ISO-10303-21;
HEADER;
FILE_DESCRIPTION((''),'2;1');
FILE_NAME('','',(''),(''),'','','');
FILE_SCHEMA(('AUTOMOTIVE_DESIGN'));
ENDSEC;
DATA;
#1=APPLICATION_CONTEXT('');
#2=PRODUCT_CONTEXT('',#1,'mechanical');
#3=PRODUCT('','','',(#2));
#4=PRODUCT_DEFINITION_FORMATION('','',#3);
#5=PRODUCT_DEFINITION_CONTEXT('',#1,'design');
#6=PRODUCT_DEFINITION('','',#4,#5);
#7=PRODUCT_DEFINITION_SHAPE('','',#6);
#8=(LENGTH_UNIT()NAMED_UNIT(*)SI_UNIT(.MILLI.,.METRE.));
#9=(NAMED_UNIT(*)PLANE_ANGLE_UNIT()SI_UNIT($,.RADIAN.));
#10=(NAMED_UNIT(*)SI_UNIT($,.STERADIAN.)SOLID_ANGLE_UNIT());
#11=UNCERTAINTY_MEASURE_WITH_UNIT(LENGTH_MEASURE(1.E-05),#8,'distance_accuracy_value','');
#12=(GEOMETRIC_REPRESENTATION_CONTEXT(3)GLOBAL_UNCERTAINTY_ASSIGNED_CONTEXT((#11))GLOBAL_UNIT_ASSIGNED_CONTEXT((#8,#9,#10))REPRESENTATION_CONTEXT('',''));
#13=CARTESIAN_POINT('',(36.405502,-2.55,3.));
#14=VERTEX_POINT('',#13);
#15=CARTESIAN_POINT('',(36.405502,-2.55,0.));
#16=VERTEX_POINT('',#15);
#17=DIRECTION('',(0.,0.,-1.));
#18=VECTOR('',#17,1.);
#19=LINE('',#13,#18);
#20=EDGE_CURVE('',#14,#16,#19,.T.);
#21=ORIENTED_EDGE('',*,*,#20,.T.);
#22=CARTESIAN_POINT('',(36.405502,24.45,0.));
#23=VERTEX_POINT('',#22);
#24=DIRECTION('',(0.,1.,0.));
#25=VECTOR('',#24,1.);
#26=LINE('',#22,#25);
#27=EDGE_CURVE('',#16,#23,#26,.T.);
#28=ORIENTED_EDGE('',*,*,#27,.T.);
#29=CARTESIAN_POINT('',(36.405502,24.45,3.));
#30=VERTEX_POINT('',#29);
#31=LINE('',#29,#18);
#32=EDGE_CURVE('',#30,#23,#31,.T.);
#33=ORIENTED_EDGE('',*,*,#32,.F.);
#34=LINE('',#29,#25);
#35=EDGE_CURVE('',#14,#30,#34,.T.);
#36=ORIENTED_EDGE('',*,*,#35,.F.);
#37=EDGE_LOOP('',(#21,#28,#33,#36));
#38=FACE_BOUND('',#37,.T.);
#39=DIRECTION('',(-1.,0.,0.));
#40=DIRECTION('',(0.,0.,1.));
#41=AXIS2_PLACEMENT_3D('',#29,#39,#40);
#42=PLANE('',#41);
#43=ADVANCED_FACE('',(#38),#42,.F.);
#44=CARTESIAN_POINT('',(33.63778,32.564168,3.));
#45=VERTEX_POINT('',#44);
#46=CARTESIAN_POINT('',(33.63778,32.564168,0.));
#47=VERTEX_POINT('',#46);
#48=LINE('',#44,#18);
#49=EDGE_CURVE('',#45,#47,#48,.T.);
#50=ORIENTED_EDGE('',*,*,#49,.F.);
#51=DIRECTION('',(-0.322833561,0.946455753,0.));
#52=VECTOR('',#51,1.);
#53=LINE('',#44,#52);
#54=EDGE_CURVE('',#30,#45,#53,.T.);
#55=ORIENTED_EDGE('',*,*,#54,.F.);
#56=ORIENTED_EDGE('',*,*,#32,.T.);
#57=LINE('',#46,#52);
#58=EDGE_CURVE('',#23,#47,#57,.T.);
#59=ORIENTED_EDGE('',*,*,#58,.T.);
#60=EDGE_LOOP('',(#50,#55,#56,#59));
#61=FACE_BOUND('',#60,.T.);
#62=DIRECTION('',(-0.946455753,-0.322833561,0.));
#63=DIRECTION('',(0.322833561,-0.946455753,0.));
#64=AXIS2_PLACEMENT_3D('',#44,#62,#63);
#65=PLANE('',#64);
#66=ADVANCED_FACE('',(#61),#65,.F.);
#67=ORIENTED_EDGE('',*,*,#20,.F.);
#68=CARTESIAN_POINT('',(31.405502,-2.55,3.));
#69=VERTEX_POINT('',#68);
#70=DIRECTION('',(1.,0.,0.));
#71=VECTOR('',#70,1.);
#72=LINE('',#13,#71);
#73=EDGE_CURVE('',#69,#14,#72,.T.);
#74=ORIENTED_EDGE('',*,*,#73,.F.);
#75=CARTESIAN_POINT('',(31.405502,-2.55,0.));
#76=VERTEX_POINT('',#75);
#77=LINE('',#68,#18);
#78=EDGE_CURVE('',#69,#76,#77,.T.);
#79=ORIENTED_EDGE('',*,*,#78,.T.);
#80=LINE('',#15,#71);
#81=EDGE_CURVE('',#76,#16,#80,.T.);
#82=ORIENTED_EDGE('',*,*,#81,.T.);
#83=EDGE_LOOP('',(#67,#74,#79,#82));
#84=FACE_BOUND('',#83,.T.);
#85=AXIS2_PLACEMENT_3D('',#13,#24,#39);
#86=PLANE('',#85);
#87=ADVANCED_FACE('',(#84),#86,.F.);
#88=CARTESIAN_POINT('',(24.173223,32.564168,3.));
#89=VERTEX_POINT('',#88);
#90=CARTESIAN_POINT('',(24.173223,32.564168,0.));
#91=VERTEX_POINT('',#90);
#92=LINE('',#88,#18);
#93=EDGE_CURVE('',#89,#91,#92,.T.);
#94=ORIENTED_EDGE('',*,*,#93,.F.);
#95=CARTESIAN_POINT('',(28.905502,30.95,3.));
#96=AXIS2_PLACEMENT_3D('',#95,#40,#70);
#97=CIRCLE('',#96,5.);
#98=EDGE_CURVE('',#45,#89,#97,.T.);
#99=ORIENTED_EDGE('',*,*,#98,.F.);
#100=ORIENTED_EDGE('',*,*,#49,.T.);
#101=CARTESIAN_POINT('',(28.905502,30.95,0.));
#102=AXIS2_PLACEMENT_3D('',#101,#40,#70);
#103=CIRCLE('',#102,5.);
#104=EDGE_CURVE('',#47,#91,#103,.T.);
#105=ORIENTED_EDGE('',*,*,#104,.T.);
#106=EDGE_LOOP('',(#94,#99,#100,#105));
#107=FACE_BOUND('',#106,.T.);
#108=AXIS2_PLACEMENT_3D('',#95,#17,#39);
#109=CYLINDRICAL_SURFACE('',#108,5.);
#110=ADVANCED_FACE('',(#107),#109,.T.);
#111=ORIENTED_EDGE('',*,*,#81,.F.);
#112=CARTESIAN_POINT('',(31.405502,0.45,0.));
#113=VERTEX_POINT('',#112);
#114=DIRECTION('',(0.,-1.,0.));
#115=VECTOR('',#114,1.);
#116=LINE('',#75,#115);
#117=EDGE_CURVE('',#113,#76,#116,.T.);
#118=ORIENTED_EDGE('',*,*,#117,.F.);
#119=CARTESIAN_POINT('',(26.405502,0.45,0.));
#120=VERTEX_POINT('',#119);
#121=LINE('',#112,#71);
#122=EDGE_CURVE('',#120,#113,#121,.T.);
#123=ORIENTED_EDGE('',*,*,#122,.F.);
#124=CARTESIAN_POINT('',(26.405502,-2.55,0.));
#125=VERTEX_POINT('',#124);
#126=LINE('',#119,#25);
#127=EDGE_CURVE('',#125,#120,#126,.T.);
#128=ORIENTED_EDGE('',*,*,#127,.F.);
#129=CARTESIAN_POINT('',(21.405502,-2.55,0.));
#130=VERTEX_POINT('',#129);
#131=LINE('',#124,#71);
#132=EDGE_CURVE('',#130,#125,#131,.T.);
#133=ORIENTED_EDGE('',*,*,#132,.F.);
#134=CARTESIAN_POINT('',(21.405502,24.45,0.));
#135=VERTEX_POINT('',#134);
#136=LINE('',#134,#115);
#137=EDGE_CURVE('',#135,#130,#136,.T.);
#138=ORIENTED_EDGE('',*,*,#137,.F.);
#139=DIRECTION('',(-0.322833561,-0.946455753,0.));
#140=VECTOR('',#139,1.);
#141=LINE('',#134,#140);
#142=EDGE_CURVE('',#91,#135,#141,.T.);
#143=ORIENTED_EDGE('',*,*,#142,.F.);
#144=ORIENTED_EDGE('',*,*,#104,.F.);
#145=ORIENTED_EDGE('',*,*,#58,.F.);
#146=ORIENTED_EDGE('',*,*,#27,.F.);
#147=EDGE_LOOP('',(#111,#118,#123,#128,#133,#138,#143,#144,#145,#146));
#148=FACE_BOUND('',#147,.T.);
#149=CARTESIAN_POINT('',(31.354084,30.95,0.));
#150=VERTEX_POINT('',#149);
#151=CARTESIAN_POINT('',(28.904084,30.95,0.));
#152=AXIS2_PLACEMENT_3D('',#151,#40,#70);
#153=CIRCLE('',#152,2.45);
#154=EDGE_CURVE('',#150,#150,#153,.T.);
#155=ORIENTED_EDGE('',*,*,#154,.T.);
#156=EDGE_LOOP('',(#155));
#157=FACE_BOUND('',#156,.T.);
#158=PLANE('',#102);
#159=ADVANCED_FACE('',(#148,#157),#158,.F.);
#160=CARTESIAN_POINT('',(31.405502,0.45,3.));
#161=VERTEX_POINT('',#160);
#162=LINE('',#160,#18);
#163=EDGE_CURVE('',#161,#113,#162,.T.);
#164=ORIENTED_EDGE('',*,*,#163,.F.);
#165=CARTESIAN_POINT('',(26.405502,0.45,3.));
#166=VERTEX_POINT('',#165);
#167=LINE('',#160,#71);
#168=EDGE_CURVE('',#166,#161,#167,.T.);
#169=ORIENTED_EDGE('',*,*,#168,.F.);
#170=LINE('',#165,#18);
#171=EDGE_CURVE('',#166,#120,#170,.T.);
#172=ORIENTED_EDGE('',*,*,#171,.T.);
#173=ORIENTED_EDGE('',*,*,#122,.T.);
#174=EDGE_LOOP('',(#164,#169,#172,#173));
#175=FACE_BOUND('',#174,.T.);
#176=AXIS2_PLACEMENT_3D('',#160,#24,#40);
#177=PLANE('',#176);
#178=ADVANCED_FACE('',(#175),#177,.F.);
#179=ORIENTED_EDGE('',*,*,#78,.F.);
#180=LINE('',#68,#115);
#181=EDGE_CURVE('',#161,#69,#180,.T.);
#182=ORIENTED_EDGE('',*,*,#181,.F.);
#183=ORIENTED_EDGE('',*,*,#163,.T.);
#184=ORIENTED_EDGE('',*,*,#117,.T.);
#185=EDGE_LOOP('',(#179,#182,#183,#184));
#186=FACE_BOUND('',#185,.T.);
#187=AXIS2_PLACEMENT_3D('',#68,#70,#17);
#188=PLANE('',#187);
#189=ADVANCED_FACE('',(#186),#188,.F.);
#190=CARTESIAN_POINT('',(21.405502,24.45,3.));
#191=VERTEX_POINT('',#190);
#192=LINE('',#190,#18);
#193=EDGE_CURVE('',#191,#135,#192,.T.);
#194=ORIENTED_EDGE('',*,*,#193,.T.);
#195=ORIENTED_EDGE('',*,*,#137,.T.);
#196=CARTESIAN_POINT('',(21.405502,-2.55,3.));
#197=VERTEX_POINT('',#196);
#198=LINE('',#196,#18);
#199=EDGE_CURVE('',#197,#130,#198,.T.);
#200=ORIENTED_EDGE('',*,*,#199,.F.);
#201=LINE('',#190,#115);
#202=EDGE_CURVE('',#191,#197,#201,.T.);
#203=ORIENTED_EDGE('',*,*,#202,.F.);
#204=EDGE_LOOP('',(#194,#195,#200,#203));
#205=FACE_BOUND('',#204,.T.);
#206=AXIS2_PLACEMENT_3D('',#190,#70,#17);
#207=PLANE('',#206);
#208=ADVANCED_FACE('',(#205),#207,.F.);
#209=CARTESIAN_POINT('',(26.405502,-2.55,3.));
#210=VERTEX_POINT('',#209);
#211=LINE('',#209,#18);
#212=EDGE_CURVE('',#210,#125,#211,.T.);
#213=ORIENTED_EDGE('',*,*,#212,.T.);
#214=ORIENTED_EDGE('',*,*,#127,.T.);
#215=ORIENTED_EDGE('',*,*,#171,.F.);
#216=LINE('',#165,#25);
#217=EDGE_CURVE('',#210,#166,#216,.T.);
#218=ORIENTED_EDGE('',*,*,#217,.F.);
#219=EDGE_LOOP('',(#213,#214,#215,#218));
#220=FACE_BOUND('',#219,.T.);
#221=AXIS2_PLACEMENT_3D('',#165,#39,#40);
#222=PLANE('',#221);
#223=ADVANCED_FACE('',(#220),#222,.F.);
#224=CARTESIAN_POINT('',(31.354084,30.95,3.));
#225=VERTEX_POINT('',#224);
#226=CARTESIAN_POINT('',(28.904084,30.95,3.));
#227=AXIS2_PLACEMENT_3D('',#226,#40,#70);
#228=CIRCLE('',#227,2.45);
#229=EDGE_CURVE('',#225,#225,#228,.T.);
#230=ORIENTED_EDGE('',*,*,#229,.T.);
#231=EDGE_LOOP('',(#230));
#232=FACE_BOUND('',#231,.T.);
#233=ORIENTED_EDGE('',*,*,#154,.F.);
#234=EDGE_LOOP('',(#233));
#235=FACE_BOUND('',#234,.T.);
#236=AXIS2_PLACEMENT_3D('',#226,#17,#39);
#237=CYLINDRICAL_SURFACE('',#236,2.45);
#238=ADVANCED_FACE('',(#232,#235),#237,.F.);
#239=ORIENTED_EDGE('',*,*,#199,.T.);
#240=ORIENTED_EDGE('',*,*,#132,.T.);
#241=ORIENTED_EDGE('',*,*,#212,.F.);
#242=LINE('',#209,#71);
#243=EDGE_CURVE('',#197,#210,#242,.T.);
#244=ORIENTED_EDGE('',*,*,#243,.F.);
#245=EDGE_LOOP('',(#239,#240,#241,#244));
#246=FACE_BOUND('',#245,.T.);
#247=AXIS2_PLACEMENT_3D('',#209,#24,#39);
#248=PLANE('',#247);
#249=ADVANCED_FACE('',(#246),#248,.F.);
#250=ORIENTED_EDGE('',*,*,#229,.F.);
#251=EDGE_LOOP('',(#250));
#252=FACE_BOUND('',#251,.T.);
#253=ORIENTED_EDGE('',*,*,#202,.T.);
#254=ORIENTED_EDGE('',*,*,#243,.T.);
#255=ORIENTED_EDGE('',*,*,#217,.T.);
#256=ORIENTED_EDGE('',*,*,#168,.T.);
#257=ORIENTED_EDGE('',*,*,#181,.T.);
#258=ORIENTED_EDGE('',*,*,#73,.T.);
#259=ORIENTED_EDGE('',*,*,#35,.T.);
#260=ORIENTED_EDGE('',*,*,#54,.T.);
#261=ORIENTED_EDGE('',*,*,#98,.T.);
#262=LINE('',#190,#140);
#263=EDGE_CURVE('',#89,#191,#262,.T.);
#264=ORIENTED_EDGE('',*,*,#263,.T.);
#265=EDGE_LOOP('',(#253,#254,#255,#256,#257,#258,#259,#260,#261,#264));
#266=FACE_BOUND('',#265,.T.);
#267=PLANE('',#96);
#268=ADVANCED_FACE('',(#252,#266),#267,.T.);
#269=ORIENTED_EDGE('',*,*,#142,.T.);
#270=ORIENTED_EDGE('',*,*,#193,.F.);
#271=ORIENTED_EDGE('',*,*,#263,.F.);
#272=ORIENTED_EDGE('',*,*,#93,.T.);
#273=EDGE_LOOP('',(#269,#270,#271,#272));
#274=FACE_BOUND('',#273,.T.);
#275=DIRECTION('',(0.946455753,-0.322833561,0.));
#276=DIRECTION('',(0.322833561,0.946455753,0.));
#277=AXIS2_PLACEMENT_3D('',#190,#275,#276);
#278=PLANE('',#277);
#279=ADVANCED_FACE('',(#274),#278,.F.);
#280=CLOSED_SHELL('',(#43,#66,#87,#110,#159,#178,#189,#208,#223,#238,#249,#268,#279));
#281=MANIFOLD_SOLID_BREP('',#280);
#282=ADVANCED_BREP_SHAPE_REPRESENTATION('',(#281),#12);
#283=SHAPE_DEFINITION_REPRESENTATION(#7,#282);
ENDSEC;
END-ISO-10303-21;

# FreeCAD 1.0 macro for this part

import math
import FreeCAD as App
import Part
import Sketcher

V = App.Vector
Q = App.Units.Quantity

doc = App.newDocument("Part")
body = doc.addObject("PartDesign::Body", "Body")

# Sketch on XY plane
sketch1 = doc.addObject("Sketcher::SketchObject", "Sketch")
body.addObject(sketch1)
sketch1.AttachmentSupport = (doc.XY_Plane, [""])
sketch1.MapMode = "FlatFace"
sketch1.addGeometry([
    Part.LineSegment(V(21.405502, 24.45, 0), V(21.405502, -2.55, 0)),  # 0
    Part.LineSegment(V(21.405502, -2.55, 0), V(26.405502, -2.55, 0)),  # 1
    Part.LineSegment(V(26.405502, -2.55, 0), V(26.405502, 0.45, 0)),  # 2
    Part.LineSegment(V(26.405502, 0.45, 0), V(31.405502, 0.45, 0)),  # 3
    Part.LineSegment(V(31.405502, 0.45, 0), V(31.405502, -2.55, 0)),  # 4
    Part.LineSegment(V(31.405502, -2.55, 0), V(36.405502, -2.55, 0)),  # 5
    Part.LineSegment(V(36.405502, -2.55, 0), V(36.405502, 24.45, 0)),  # 6
    Part.LineSegment(V(36.405502, 24.45, 0), V(33.63778, 32.564168, 0)),  # 7
    Part.ArcOfCircle(Part.Circle(V(28.905502, 30.95, 0), V(0, 0, 1), 5), math.radians(18.834373), math.radians(161.165627)),  # 8
    Part.LineSegment(V(24.173223, 32.564168, 0), V(21.405502, 24.45, 0)),  # 9
    Part.Circle(V(28.904084, 30.95, 0), V(0, 0, 1), 2.45),  # 10
], False)
sketch1.addConstraint([
    Sketcher.Constraint("Coincident", 0, 2, 1, 1),
    Sketcher.Constraint("Coincident", 1, 2, 2, 1),
    Sketcher.Constraint("Coincident", 2, 2, 3, 1),
    Sketcher.Constraint("Coincident", 3, 2, 4, 1),
    Sketcher.Constraint("Coincident", 4, 2, 5, 1),
    Sketcher.Constraint("Coincident", 5, 2, 6, 1),
    Sketcher.Constraint("Coincident", 6, 2, 7, 1),
    Sketcher.Constraint("Tangent", 7, 2, 8, 1),
    Sketcher.Constraint("Tangent", 8, 2, 9, 1),
    Sketcher.Constraint("Coincident", 9, 2, 0, 1),
    Sketcher.Constraint("Vertical", 0),
    Sketcher.Constraint("Horizontal", 1),
    Sketcher.Constraint("Vertical", 2),
    Sketcher.Constraint("Horizontal", 3),
    Sketcher.Constraint("Vertical", 4),
    Sketcher.Constraint("Horizontal", 5),
    Sketcher.Constraint("Vertical", 6),
    Sketcher.Constraint("Horizontal", 8, 3, 10, 3),
    Sketcher.Constraint("Horizontal", 1, 2, 4, 2),
    Sketcher.Constraint("Horizontal", 7, 2, 8, 2),
    Sketcher.Constraint("Horizontal", 6, 2, 9, 2),
    Sketcher.Constraint("Equal", 1, 3),
    Sketcher.Constraint("Equal", 3, 5),
    Sketcher.Constraint("Radius", 8, Q("5 mm")),
    Sketcher.Constraint("Diameter", 10, Q("4.9 mm")),
    Sketcher.Constraint("DistanceX", 1, 1, 1, 2, Q("5 mm")),
    Sketcher.Constraint("DistanceY", 0, 2, 0, 1, Q("27 mm")),
    Sketcher.Constraint("DistanceY", 2, 1, 2, 2, Q("3 mm")),
    Sketcher.Constraint("DistanceY", 0, 2, 10, 3, Q("33.5 mm")),
    Sketcher.Constraint("DistanceY", -1, 1, 8, 3, Q("30.95 mm")),
    Sketcher.Constraint("DistanceX", -1, 1, 8, 3, Q("28.905502 mm")),
    Sketcher.Constraint("DistanceX", 8, 2, 10, 3, Q("4.730861 mm")),
])
pad1 = doc.addObject("PartDesign::Pad", "Pad")
body.addObject(pad1)
pad1.Profile = sketch1
pad1.Length = 3

doc.recompute()
